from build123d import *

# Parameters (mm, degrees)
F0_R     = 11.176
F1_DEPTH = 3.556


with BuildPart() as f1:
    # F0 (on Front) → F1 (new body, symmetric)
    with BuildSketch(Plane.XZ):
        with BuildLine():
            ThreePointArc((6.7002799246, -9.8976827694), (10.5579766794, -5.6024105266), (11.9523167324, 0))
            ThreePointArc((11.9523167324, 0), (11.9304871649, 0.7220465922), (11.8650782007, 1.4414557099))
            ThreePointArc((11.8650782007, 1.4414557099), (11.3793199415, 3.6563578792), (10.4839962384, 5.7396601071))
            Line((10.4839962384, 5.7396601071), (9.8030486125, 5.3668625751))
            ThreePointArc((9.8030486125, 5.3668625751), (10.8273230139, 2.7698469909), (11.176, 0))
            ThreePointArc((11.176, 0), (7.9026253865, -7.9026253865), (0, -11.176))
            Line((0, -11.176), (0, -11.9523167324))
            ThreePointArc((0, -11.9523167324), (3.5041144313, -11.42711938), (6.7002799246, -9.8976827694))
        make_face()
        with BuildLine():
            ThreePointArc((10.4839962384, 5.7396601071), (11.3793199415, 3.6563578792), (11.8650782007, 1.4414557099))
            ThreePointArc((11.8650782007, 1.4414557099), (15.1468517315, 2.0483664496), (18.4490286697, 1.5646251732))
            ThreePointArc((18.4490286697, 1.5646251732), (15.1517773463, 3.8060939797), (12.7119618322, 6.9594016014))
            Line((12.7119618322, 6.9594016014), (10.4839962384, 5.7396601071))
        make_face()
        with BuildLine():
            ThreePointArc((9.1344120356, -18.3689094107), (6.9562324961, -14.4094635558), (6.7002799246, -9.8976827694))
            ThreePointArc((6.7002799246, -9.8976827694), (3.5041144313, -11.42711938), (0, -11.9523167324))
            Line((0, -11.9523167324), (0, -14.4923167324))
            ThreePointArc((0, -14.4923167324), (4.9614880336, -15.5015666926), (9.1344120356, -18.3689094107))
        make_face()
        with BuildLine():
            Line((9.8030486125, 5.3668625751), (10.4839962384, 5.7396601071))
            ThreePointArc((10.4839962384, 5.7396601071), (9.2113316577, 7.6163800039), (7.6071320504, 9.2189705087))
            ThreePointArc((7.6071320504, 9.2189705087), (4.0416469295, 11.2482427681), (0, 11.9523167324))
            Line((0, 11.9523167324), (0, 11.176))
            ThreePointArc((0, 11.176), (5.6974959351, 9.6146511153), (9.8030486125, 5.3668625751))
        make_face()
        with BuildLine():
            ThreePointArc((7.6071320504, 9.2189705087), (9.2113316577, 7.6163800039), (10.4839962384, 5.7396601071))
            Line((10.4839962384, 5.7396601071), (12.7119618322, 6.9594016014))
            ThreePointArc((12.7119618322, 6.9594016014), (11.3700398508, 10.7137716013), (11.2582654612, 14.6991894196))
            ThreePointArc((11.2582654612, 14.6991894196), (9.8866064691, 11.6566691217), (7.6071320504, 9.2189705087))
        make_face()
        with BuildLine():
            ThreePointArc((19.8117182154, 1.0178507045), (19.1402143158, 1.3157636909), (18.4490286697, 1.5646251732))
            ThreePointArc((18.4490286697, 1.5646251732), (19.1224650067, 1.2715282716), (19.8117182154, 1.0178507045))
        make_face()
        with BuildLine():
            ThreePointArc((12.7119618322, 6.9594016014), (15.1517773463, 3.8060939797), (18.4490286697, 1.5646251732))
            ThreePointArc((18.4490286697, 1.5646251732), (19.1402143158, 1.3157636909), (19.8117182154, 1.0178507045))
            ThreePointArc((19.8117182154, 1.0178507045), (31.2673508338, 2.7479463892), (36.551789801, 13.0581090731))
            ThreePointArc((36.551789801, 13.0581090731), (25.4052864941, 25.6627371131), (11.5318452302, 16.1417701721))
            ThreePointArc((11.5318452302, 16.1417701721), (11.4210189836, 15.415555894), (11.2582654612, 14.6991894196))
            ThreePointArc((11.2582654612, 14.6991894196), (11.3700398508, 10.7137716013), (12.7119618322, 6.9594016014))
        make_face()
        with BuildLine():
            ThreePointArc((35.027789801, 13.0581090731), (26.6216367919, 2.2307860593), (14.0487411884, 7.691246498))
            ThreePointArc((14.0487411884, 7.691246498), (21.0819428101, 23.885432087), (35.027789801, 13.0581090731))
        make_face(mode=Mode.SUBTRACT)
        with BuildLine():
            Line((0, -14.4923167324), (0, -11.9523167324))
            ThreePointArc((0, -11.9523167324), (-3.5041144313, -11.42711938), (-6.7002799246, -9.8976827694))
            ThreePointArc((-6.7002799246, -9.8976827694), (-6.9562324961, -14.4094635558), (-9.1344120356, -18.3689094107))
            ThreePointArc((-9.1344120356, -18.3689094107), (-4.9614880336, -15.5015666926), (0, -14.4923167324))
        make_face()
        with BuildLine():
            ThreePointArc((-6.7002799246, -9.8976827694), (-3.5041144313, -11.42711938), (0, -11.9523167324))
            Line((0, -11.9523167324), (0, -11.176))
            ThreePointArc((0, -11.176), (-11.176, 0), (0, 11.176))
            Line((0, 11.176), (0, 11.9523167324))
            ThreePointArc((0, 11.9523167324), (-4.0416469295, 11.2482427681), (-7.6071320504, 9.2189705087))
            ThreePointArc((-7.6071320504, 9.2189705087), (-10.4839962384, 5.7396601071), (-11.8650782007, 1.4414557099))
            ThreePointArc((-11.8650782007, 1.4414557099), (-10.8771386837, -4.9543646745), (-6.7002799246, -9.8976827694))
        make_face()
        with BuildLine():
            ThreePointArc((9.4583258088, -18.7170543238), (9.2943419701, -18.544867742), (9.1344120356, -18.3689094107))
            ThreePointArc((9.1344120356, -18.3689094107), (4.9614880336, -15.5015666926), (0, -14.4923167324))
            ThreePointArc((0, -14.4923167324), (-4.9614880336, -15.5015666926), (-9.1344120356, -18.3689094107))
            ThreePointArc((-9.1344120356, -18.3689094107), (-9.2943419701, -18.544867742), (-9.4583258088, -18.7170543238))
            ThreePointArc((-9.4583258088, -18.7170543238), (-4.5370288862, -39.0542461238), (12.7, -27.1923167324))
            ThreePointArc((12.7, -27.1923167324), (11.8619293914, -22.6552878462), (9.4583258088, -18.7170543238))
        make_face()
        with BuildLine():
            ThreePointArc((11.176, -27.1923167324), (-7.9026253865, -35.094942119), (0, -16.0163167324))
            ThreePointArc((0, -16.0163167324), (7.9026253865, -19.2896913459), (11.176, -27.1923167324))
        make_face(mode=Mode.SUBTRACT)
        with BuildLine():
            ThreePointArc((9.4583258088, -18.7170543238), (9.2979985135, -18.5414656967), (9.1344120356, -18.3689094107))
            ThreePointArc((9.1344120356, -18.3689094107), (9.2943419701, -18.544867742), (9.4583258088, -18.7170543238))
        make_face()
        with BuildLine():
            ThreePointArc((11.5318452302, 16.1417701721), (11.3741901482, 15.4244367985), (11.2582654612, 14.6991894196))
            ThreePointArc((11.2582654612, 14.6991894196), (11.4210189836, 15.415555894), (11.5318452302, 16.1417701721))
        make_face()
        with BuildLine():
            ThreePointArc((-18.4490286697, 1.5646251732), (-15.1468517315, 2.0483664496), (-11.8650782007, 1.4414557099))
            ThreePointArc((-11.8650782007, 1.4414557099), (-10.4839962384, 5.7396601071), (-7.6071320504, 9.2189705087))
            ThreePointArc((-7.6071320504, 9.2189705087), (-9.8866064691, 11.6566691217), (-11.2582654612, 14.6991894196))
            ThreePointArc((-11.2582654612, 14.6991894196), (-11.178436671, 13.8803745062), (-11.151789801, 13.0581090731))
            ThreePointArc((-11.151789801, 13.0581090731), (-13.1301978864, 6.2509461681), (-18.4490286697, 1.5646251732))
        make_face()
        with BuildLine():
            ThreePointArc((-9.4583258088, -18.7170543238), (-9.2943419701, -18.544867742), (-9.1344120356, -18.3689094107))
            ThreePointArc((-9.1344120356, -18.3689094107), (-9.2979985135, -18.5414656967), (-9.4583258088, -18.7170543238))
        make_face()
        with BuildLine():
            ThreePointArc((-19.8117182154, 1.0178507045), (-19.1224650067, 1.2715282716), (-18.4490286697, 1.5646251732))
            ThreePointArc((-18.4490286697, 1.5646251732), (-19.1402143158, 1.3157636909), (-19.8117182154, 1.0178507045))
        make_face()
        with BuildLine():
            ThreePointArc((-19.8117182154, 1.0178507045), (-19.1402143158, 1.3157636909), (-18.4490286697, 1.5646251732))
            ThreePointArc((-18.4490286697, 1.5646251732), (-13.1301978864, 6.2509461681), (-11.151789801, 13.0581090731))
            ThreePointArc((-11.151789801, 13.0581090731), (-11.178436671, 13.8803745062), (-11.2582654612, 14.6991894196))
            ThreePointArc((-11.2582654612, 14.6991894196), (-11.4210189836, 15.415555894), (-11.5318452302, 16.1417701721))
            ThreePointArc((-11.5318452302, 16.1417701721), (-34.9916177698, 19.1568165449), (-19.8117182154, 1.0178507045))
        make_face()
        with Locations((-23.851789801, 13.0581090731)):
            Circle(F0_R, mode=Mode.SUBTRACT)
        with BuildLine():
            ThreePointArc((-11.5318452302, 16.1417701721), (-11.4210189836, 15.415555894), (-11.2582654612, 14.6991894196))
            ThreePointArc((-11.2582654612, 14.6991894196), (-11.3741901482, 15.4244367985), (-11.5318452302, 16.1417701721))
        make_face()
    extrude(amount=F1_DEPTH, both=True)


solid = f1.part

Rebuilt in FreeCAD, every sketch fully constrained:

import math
import FreeCAD as App
import Part
import Sketcher

V = App.Vector
Q = App.Units.Quantity

doc = App.newDocument("Part")
body = doc.addObject("PartDesign::Body", "Body")

# Sketch on XZ plane
sketch1 = body.newObject("Sketcher::SketchObject", "Sketch")
sketch1.AttachmentSupport = (doc.getObject("XZ_Plane"), [""])
sketch1.MapMode = "FlatFace"
sketch1.addGeometry([
    Part.ArcOfCircle(Part.Circle(V(0, 0, 0), V(0, 0, 1), 11.95), math.radians(-56), math.radians(0)),  # 0
    Part.ArcOfCircle(Part.Circle(V(0, 0, 0), V(0, 0, 1), 11.95), math.radians(0), math.radians(6.93)),  # 1
    Part.ArcOfCircle(Part.Circle(V(15.34, -8.16, 0), V(0, 0, 1), 10.21), math.radians(72), math.radians(110)),  # 2
    Part.ArcOfCircle(Part.Circle(V(23.85, 13.06, 0), V(0, 0, 1), 12.7), math.radians(-115.18), math.radians(-108.55)),  # 3
    Part.ArcOfCircle(Part.Circle(V(23.85, 13.06, 0), V(0, 0, 1), 12.7), math.radians(-109), math.radians(0)),  # 4
    Part.ArcOfCircle(Part.Circle(V(23.85, 13.06, 0), V(0, 0, 1), 12.7), math.radians(0), math.radians(166)),  # 5
    Part.ArcOfCircle(Part.Circle(V(23.85, 13.06, 0), V(0, 0, 1), 12.7), math.radians(165.95), math.radians(172.58)),  # 6
    Part.ArcOfCircle(Part.Circle(V(1.39, 17.32, 0), V(0, 0, 1), 10.21), math.radians(-52), math.radians(-15)),  # 7
    Part.ArcOfCircle(Part.Circle(V(0, 0, 0), V(0, 0, 1), 11.95), math.radians(50), math.radians(90)),  # 8
    Part.ArcOfCircle(Part.Circle(V(0, 0, 0), V(0, 0, 1), 11.95), math.radians(90), math.radians(130)),  # 9
    Part.ArcOfCircle(Part.Circle(V(-1.39, 17.32, 0), V(0, 0, 1), 10.21), math.radians(-165), math.radians(-128)),  # 10
    Part.ArcOfCircle(Part.Circle(V(-23.85, 13.06, 0), V(0, 0, 1), 12.7), math.radians(7.42), math.radians(14.05)),  # 11
    Part.ArcOfCircle(Part.Circle(V(-23.85, 13.06, 0), V(0, 0, 1), 12.7), math.radians(14), math.radians(289)),  # 12
    Part.ArcOfCircle(Part.Circle(V(-23.85, 13.06, 0), V(0, 0, 1), 12.7), math.radians(-71.45), math.radians(-64.82)),  # 13
    Part.ArcOfCircle(Part.Circle(V(-15.34, -8.16, 0), V(0, 0, 1), 10.21), math.radians(70), math.radians(108)),  # 14
    Part.ArcOfCircle(Part.Circle(V(0, 0, 0), V(0, 0, 1), 11.95), math.radians(173), math.radians(236)),  # 15
    Part.ArcOfCircle(Part.Circle(V(-16.77, -11.59, 0), V(0, 0, 1), 10.21), math.radians(-42), math.radians(10)),  # 16
    Part.ArcOfCircle(Part.Circle(V(0, -27.19, 0), V(0, 0, 1), 12.7), math.radians(135.99), math.radians(138.14)),  # 17
    Part.ArcOfCircle(Part.Circle(V(0, -27.19, 0), V(0, 0, 1), 12.7), math.radians(138), math.radians(360)),  # 18
    Part.ArcOfCircle(Part.Circle(V(0, -27.19, 0), V(0, 0, 1), 12.7), math.radians(0), math.radians(42)),  # 19
    Part.ArcOfCircle(Part.Circle(V(0, -27.19, 0), V(0, 0, 1), 12.7), math.radians(41.86), math.radians(44.01)),  # 20
    Part.ArcOfCircle(Part.Circle(V(16.77, -11.59, 0), V(0, 0, 1), 10.21), math.radians(170), math.radians(222)),  # 21
    Part.ArcOfCircle(Part.Circle(V(0, -27.19, 0), V(0, 0, 1), 11.18), math.radians(0), math.radians(90)),  # 22
    Part.ArcOfCircle(Part.Circle(V(0, -27.19, 0), V(0, 0, 1), 11.18), math.radians(90), math.radians(360)),  # 23
    Part.Circle(V(-23.85, 13.06, 0), V(0, 0, 1), 11.18),  # 24
    Part.ArcOfCircle(Part.Circle(V(0, 0, 0), V(0, 0, 1), 11.18), math.radians(29), math.radians(90)),  # 25
    Part.ArcOfCircle(Part.Circle(V(0, 0, 0), V(0, 0, 1), 11.18), math.radians(0), math.radians(29)),  # 26
    Part.ArcOfCircle(Part.Circle(V(0, 0, 0), V(0, 0, 1), 11.18), math.radians(-90), math.radians(0)),  # 27
    Part.ArcOfCircle(Part.Circle(V(0, 0, 0), V(0, 0, 1), 11.18), math.radians(90), math.radians(270)),  # 28
    Part.ArcOfCircle(Part.Circle(V(23.85, 13.06, 0), V(0, 0, 1), 11.18), math.radians(0), math.radians(209)),  # 29
    Part.ArcOfCircle(Part.Circle(V(23.85, 13.06, 0), V(0, 0, 1), 11.18), math.radians(-151), math.radians(0)),  # 30
], False)
sketch1.addConstraint([
    Sketcher.Constraint("Tangent", 0, 2, 1, 1),
    Sketcher.Constraint("Coincident", 1, 2, 2, 2),
    Sketcher.Constraint("Coincident", 2, 1, 3, 1),
    Sketcher.Constraint("Tangent", 3, 2, 4, 1),
    Sketcher.Constraint("Tangent", 4, 2, 5, 1),
    Sketcher.Constraint("Tangent", 5, 2, 6, 1),
    Sketcher.Constraint("Coincident", 6, 2, 7, 2),
    Sketcher.Constraint("Coincident", 7, 1, 8, 1),
    Sketcher.Constraint("Tangent", 8, 2, 9, 1),
    Sketcher.Constraint("Coincident", 9, 2, 10, 2),
    Sketcher.Constraint("Coincident", 10, 1, 11, 1),
    Sketcher.Constraint("Tangent", 11, 2, 12, 1),
    Sketcher.Constraint("Tangent", 12, 2, 13, 1),
    Sketcher.Constraint("Coincident", 13, 2, 14, 2),
    Sketcher.Constraint("Coincident", 14, 1, 15, 1),
    Sketcher.Constraint("Coincident", 15, 2, 16, 2),
    Sketcher.Constraint("Coincident", 16, 1, 17, 1),
    Sketcher.Constraint("Tangent", 17, 2, 18, 1),
    Sketcher.Constraint("Tangent", 18, 2, 19, 1),
    Sketcher.Constraint("Tangent", 19, 2, 20, 1),
    Sketcher.Constraint("Coincident", 20, 2, 21, 2),
    Sketcher.Constraint("Coincident", 21, 1, 0, 1),
    Sketcher.Constraint("Tangent", 22, 1, 23, 2),
    Sketcher.Constraint("Coincident", 23, 1, 22, 2),
    Sketcher.Constraint("Tangent", 25, 1, 26, 2),
    Sketcher.Constraint("Tangent", 26, 1, 27, 2),
    Sketcher.Constraint("Tangent", 27, 1, 28, 2),
    Sketcher.Constraint("Tangent", 28, 1, 25, 2),
    Sketcher.Constraint("Tangent", 29, 1, 30, 2),
    Sketcher.Constraint("Coincident", 30, 1, 29, 2),
    Sketcher.Constraint("Coincident", 0, 3, -1, 1),
    Sketcher.Constraint("Coincident", 8, 3, -1, 1),
    Sketcher.Constraint("Coincident", 15, 3, -1, 1),
    Sketcher.Constraint("Coincident", 25, 3, -1, 1),
    Sketcher.Constraint("Coincident", 5, 3, 3, 3),
    Sketcher.Constraint("Coincident", 13, 3, 11, 3),
    Sketcher.Constraint("Coincident", 19, 3, 17, 3),
    Sketcher.Constraint("Coincident", 22, 3, 17, 3),
    Sketcher.Constraint("Coincident", 24, 3, 11, 3),
    Sketcher.Constraint("Coincident", 29, 3, 3, 3),
    Sketcher.Constraint("Equal", 0, 1),
    Sketcher.Constraint("Equal", 5, 6),
    Sketcher.Constraint("Equal", 2, 7),
    Sketcher.Constraint("Equal", 1, 8),
    Sketcher.Constraint("Equal", 8, 9),
    Sketcher.Constraint("Equal", 7, 10),
    Sketcher.Constraint("Equal", 6, 11),
    Sketcher.Constraint("Equal", 10, 14),
    Sketcher.Constraint("Equal", 9, 15),
    Sketcher.Constraint("Equal", 14, 16),
    Sketcher.Constraint("Equal", 13, 17),
    Sketcher.Constraint("Equal", 19, 20),
    Sketcher.Constraint("Equal", 16, 21),
    Sketcher.Constraint("Equal", 23, 24),
    Sketcher.Constraint("Equal", 24, 25),
    Sketcher.Constraint("Equal", 25, 26),
    Sketcher.Constraint("Equal", 28, 29),
    Sketcher.Constraint("Symmetric", 7, 3, 10, 3, -2),
    Sketcher.Constraint("Symmetric", 3, 3, 11, 3, -2),
    Sketcher.Constraint("Symmetric", 2, 3, 14, 3, -2),
    Sketcher.Constraint("Symmetric", 16, 3, 21, 3, -2),
    Sketcher.Constraint("Symmetric", 17, 2, 19, 2, -2),
    Sketcher.Constraint("PointOnObject", 0, 2, -1),
    Sketcher.Constraint("PointOnObject", 8, 2, -2),
    Sketcher.Constraint("PointOnObject", 23, 1, -2),
    Sketcher.Constraint("PointOnObject", 26, 1, -1),
    Sketcher.Constraint("PointOnObject", 27, 1, -2),
    Sketcher.Constraint("PointOnObject", 28, 1, -2),
    Sketcher.Constraint("Horizontal", 30, 3, 4, 2),
    Sketcher.Constraint("Horizontal", 5, 2, 11, 2),
    Sketcher.Constraint("Horizontal", 3, 2, 12, 2),
    Sketcher.Constraint("Horizontal", 23, 3, 18, 2),
    Sketcher.Constraint("Horizontal", 18, 2, 22, 1),
    Sketcher.Constraint("Horizontal", 4, 2, 29, 1),
    Sketcher.Constraint("Radius", 3, Q("0.5 in")),
    Sketcher.Constraint("Diameter", 24, Q("0.88 in")),
    Sketcher.Constraint("Radius", 2, Q("0.402 in")),
    Sketcher.Constraint("DistanceX", -1, 1, 30, 1, Q("0.5531 in")),
    Sketcher.Constraint("Radius", 0, Q("11.952317 mm")),
    Sketcher.Constraint("DistanceX", -1, 1, 3, 3, Q("23.85179 mm")),
    Sketcher.Constraint("DistanceY", -1, 1, 3, 3, Q("13.058109 mm")),
    Sketcher.Constraint("DistanceX", -1, 1, 7, 3, Q("1.389029 mm")),
    Sketcher.Constraint("DistanceX", -1, 1, 1, 2, Q("11.865078 mm")),
    Sketcher.Constraint("DistanceX", -1, 1, 2, 1, Q("18.449029 mm")),
    Sketcher.Constraint("DistanceX", -1, 1, 3, 2, Q("19.811718 mm")),
    Sketcher.Constraint("DistanceY", -1, 1, 5, 2, Q("16.14177 mm")),
    Sketcher.Constraint("DistanceY", -1, 1, 6, 2, Q("14.699189 mm")),
    Sketcher.Constraint("DistanceX", 15, 2, -1, 1, Q("6.70028 mm")),
    Sketcher.Constraint("DistanceY", 16, 1, -1, 1, Q("18.368909 mm")),
    Sketcher.Constraint("DistanceX", -1, 1, 25, 1, Q("9.803049 mm")),
    Sketcher.Constraint("DistanceX", 16, 3, -1, 1, Q("16.769933 mm")),
    Sketcher.Constraint("DistanceX", 17, 2, -1, 1, Q("9.458326 mm")),
])
pad1 = body.newObject("PartDesign::Pad", "Pad")
pad1.Profile = sketch1
pad1.Length = Q("0.28 in")
pad1.Midplane = True

doc.recompute()
